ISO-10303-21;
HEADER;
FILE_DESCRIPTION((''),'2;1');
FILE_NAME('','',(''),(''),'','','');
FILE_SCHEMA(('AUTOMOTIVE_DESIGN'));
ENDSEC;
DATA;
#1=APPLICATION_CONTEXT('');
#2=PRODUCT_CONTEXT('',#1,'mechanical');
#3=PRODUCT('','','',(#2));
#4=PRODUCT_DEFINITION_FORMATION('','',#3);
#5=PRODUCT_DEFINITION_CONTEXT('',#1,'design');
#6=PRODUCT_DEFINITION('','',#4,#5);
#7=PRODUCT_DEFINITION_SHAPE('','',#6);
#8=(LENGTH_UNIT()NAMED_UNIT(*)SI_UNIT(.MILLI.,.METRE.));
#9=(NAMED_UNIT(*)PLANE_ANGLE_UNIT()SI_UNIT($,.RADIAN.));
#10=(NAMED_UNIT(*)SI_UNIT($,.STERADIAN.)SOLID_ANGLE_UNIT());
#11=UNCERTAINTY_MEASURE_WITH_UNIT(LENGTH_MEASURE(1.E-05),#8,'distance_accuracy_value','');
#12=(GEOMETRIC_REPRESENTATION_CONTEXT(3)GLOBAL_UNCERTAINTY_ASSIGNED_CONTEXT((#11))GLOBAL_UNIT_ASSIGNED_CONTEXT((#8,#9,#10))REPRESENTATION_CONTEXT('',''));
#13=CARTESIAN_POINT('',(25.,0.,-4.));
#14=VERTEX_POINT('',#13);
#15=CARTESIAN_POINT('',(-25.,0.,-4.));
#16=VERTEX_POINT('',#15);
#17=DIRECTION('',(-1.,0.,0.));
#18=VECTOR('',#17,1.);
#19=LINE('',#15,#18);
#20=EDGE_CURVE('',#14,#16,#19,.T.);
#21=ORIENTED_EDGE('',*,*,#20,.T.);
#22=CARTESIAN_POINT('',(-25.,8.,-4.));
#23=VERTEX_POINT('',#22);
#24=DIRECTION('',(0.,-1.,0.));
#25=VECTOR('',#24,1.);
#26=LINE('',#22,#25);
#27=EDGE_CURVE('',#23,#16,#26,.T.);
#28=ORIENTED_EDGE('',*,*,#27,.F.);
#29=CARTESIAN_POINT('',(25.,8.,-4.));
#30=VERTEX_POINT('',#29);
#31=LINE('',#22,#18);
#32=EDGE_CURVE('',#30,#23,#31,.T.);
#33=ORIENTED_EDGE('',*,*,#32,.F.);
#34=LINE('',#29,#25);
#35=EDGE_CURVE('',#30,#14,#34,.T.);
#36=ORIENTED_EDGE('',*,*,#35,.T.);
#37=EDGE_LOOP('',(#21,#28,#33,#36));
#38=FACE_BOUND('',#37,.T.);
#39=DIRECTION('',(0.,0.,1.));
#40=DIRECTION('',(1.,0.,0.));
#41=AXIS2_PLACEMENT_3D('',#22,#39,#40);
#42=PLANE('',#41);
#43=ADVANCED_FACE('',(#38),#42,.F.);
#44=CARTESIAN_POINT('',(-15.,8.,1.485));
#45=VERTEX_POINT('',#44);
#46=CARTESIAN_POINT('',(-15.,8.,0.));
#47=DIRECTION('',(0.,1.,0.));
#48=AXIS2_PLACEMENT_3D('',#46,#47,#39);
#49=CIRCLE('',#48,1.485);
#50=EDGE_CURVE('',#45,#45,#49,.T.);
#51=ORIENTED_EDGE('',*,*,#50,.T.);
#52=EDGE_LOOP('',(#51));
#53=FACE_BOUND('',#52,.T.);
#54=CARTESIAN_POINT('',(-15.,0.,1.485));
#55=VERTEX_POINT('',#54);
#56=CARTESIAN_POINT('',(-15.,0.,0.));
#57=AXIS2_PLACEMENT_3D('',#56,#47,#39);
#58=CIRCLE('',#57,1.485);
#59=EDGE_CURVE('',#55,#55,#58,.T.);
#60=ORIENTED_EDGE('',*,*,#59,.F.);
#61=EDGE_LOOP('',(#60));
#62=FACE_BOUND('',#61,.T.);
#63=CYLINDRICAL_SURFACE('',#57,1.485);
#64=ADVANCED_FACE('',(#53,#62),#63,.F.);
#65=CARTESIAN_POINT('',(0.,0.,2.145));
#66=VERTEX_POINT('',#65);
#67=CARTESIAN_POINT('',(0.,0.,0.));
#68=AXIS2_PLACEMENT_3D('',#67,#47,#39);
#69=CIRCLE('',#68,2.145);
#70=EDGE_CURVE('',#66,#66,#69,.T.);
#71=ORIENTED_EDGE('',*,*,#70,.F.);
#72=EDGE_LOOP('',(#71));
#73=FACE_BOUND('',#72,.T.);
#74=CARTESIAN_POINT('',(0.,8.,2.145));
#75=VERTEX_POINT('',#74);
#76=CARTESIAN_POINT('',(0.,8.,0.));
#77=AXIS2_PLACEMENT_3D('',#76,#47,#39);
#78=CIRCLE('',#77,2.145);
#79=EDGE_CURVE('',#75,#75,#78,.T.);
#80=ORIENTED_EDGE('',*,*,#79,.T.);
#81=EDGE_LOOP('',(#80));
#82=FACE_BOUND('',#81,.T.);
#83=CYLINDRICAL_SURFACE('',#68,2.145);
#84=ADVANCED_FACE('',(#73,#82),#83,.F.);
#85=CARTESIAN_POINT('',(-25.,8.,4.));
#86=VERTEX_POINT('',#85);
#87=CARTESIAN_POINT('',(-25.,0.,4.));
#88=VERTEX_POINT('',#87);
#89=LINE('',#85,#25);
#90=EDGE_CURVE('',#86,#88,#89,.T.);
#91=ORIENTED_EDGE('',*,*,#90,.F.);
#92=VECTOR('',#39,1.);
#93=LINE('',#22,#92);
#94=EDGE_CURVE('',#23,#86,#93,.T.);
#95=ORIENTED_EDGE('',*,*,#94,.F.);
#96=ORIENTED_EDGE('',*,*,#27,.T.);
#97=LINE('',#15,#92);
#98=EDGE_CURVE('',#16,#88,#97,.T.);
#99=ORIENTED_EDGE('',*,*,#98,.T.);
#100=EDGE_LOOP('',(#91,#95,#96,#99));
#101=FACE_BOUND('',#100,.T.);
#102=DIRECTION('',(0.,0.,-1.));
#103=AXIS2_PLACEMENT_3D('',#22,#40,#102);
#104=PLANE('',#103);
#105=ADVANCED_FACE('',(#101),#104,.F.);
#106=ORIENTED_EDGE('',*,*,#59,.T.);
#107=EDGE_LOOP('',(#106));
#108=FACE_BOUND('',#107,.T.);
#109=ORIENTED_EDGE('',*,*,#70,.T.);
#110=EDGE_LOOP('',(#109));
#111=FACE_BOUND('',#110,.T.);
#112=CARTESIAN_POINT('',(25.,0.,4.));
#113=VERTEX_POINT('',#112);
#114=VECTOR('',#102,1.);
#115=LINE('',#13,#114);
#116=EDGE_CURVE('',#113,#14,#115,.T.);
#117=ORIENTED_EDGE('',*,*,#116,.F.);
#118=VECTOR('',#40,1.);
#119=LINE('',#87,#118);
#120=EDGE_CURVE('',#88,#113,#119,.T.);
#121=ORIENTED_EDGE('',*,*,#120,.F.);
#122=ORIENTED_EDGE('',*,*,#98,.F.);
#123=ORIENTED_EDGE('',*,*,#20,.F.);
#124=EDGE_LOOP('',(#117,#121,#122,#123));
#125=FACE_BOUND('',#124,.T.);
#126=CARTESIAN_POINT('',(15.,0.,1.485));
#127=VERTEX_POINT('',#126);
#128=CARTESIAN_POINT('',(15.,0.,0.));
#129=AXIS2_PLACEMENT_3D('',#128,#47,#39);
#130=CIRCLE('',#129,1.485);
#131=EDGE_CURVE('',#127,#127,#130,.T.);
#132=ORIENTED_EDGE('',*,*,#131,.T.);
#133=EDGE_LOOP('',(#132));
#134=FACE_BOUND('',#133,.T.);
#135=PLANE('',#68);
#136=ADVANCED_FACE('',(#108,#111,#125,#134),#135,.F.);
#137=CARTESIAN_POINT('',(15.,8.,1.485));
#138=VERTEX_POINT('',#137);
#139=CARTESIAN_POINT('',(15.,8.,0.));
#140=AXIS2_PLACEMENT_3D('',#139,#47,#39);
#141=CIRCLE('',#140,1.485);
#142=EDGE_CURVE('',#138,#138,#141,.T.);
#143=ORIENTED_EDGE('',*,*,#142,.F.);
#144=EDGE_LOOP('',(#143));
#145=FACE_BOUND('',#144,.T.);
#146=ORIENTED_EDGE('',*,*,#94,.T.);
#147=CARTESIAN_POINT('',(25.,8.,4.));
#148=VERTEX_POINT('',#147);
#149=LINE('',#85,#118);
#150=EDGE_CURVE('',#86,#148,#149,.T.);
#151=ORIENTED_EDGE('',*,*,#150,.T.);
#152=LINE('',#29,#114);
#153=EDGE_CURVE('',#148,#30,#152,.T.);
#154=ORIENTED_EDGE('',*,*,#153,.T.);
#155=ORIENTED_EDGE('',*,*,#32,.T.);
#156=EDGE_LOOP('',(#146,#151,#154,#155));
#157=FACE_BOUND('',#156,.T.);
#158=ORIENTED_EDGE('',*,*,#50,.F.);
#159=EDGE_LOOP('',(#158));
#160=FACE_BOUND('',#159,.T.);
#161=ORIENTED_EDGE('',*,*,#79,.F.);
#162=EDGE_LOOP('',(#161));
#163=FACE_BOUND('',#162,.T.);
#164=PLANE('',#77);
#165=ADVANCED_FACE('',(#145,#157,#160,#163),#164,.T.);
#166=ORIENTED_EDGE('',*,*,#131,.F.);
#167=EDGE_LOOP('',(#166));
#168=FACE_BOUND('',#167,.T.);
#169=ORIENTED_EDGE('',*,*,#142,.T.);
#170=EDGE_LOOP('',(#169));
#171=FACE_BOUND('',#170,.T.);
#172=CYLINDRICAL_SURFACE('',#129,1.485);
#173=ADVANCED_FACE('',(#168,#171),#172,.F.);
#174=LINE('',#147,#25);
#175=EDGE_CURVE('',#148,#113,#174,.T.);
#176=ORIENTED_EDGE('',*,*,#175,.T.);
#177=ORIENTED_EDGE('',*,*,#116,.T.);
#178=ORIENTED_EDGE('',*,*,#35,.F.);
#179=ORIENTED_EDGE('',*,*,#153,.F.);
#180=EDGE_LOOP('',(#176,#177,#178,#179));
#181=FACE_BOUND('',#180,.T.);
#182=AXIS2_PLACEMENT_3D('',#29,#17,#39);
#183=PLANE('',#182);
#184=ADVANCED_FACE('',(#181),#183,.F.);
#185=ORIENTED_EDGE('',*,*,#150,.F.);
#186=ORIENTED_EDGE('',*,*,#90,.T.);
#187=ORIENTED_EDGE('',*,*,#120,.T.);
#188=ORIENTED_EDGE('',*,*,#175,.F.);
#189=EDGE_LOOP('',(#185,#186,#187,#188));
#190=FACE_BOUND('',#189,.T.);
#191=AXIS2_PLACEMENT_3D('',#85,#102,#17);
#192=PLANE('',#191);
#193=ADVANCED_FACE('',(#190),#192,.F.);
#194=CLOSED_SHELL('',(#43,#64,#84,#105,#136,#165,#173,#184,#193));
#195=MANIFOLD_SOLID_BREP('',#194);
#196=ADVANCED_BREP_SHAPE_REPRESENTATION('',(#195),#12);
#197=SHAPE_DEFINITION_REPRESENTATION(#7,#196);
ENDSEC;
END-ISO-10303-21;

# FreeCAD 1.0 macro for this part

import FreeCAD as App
import Part
import Sketcher
from FreeCAD import Vector


def add_polygon(sketch, points):
    """Adds a closed chain of lines whose ends are joined by coincident constraints."""
    first, n = sketch.GeometryCount, len(points)
    for a, b in zip(points, points[1:] + points[:1]):
        sketch.addGeometry(Part.LineSegment(App.Vector(*a, 0), App.Vector(*b, 0)), False)
    for i in range(n):
        sketch.addConstraint(Sketcher.Constraint("Coincident", first + i, 2, first + (i + 1) % n, 1))

doc = App.newDocument("Part")
params = doc.addObject("Spreadsheet::Sheet", "Params")
for row, (alias, value) in enumerate([
    ("sketch1_width", "50 mm"),
    ("sketch1_height", "8 mm"),
    ("pad1_length", "8 mm"),
    ("sketch2_diameter", "4.29 mm"),
    ("sketch2_diameter2", "2.97 mm"),
    ("pocket1_length", "8 mm"),
], start=1):
    params.set(f"A{row}", alias)
    params.set(f"B{row}", "=" + value)
    params.setAlias(f"B{row}", alias)

body = doc.addObject("PartDesign::Body", "Body")

# Sketch on XZ plane
sketch1 = body.newObject("Sketcher::SketchObject", "Sketch")
sketch1.AttachmentSupport = (doc.getObject("XZ_Plane"), [""])
sketch1.MapMode = "FlatFace"
add_polygon(sketch1, [(-25, -4), (-25, 4), (25, 4), (25, -4)])  # lines 0-3
sketch1.addConstraint([
    Sketcher.Constraint("Vertical", 0),
    Sketcher.Constraint("Horizontal", 1),
    Sketcher.Constraint("Vertical", 2),
    Sketcher.Constraint("Horizontal", 3),
    Sketcher.Constraint("Symmetric", 0, 2, 2, 2, -1, 1),
    Sketcher.Constraint("DistanceX", 1, 1, 1, 2, 50.0),
    Sketcher.Constraint("DistanceY", 0, 1, 0, 2, 8.0),
])
sketch1.setExpression("Constraints[9]", "Params.sketch1_width")
sketch1.setExpression("Constraints[10]", "Params.sketch1_height")
pad1 = body.newObject("PartDesign::Pad", "Pad")
pad1.Profile = sketch1
pad1.setExpression("Length", "Params.pad1_length")
pad1.Reversed = True

# Sketch on XZ plane
sketch2 = body.newObject("Sketcher::SketchObject", "Sketch001")
sketch2.AttachmentSupport = (doc.getObject("XZ_Plane"), [""])
sketch2.MapMode = "FlatFace"
sketch2.AttachmentOffset = App.Placement(Vector(0, 0, -8), App.Rotation())
sketch2.addGeometry([
    Part.Circle(Vector(0, 0, 0), Vector(0, 0, 1), 2.1),
    Part.Circle(Vector(-15, 0, 0), Vector(0, 0, 1), 1.5),
    Part.Circle(Vector(15, 0, 0), Vector(0, 0, 1), 1.5),
], False)
sketch2.addConstraint([
    Sketcher.Constraint("Coincident", 0, 3, -1, 1),
    Sketcher.Constraint("Equal", 1, 2),
    Sketcher.Constraint("Symmetric", 1, 3, 2, 3, -1, 1),
    Sketcher.Constraint("PointOnObject", 1, 3, -1),
    Sketcher.Constraint("Diameter", 0, 4.29),
    Sketcher.Constraint("Diameter", 1, 2.97),
    Sketcher.Constraint("DistanceX", 1, 3, -1, 1, 15.0),
])
sketch2.setExpression("Constraints[4]", "Params.sketch2_diameter")
sketch2.setExpression("Constraints[5]", "Params.sketch2_diameter2")
pocket1 = body.newObject("PartDesign::Pocket", "Pocket")
pocket1.Profile = sketch2
pocket1.setExpression("Length", "Params.pocket1_length")
pocket1.Reversed = True

doc.recompute()
